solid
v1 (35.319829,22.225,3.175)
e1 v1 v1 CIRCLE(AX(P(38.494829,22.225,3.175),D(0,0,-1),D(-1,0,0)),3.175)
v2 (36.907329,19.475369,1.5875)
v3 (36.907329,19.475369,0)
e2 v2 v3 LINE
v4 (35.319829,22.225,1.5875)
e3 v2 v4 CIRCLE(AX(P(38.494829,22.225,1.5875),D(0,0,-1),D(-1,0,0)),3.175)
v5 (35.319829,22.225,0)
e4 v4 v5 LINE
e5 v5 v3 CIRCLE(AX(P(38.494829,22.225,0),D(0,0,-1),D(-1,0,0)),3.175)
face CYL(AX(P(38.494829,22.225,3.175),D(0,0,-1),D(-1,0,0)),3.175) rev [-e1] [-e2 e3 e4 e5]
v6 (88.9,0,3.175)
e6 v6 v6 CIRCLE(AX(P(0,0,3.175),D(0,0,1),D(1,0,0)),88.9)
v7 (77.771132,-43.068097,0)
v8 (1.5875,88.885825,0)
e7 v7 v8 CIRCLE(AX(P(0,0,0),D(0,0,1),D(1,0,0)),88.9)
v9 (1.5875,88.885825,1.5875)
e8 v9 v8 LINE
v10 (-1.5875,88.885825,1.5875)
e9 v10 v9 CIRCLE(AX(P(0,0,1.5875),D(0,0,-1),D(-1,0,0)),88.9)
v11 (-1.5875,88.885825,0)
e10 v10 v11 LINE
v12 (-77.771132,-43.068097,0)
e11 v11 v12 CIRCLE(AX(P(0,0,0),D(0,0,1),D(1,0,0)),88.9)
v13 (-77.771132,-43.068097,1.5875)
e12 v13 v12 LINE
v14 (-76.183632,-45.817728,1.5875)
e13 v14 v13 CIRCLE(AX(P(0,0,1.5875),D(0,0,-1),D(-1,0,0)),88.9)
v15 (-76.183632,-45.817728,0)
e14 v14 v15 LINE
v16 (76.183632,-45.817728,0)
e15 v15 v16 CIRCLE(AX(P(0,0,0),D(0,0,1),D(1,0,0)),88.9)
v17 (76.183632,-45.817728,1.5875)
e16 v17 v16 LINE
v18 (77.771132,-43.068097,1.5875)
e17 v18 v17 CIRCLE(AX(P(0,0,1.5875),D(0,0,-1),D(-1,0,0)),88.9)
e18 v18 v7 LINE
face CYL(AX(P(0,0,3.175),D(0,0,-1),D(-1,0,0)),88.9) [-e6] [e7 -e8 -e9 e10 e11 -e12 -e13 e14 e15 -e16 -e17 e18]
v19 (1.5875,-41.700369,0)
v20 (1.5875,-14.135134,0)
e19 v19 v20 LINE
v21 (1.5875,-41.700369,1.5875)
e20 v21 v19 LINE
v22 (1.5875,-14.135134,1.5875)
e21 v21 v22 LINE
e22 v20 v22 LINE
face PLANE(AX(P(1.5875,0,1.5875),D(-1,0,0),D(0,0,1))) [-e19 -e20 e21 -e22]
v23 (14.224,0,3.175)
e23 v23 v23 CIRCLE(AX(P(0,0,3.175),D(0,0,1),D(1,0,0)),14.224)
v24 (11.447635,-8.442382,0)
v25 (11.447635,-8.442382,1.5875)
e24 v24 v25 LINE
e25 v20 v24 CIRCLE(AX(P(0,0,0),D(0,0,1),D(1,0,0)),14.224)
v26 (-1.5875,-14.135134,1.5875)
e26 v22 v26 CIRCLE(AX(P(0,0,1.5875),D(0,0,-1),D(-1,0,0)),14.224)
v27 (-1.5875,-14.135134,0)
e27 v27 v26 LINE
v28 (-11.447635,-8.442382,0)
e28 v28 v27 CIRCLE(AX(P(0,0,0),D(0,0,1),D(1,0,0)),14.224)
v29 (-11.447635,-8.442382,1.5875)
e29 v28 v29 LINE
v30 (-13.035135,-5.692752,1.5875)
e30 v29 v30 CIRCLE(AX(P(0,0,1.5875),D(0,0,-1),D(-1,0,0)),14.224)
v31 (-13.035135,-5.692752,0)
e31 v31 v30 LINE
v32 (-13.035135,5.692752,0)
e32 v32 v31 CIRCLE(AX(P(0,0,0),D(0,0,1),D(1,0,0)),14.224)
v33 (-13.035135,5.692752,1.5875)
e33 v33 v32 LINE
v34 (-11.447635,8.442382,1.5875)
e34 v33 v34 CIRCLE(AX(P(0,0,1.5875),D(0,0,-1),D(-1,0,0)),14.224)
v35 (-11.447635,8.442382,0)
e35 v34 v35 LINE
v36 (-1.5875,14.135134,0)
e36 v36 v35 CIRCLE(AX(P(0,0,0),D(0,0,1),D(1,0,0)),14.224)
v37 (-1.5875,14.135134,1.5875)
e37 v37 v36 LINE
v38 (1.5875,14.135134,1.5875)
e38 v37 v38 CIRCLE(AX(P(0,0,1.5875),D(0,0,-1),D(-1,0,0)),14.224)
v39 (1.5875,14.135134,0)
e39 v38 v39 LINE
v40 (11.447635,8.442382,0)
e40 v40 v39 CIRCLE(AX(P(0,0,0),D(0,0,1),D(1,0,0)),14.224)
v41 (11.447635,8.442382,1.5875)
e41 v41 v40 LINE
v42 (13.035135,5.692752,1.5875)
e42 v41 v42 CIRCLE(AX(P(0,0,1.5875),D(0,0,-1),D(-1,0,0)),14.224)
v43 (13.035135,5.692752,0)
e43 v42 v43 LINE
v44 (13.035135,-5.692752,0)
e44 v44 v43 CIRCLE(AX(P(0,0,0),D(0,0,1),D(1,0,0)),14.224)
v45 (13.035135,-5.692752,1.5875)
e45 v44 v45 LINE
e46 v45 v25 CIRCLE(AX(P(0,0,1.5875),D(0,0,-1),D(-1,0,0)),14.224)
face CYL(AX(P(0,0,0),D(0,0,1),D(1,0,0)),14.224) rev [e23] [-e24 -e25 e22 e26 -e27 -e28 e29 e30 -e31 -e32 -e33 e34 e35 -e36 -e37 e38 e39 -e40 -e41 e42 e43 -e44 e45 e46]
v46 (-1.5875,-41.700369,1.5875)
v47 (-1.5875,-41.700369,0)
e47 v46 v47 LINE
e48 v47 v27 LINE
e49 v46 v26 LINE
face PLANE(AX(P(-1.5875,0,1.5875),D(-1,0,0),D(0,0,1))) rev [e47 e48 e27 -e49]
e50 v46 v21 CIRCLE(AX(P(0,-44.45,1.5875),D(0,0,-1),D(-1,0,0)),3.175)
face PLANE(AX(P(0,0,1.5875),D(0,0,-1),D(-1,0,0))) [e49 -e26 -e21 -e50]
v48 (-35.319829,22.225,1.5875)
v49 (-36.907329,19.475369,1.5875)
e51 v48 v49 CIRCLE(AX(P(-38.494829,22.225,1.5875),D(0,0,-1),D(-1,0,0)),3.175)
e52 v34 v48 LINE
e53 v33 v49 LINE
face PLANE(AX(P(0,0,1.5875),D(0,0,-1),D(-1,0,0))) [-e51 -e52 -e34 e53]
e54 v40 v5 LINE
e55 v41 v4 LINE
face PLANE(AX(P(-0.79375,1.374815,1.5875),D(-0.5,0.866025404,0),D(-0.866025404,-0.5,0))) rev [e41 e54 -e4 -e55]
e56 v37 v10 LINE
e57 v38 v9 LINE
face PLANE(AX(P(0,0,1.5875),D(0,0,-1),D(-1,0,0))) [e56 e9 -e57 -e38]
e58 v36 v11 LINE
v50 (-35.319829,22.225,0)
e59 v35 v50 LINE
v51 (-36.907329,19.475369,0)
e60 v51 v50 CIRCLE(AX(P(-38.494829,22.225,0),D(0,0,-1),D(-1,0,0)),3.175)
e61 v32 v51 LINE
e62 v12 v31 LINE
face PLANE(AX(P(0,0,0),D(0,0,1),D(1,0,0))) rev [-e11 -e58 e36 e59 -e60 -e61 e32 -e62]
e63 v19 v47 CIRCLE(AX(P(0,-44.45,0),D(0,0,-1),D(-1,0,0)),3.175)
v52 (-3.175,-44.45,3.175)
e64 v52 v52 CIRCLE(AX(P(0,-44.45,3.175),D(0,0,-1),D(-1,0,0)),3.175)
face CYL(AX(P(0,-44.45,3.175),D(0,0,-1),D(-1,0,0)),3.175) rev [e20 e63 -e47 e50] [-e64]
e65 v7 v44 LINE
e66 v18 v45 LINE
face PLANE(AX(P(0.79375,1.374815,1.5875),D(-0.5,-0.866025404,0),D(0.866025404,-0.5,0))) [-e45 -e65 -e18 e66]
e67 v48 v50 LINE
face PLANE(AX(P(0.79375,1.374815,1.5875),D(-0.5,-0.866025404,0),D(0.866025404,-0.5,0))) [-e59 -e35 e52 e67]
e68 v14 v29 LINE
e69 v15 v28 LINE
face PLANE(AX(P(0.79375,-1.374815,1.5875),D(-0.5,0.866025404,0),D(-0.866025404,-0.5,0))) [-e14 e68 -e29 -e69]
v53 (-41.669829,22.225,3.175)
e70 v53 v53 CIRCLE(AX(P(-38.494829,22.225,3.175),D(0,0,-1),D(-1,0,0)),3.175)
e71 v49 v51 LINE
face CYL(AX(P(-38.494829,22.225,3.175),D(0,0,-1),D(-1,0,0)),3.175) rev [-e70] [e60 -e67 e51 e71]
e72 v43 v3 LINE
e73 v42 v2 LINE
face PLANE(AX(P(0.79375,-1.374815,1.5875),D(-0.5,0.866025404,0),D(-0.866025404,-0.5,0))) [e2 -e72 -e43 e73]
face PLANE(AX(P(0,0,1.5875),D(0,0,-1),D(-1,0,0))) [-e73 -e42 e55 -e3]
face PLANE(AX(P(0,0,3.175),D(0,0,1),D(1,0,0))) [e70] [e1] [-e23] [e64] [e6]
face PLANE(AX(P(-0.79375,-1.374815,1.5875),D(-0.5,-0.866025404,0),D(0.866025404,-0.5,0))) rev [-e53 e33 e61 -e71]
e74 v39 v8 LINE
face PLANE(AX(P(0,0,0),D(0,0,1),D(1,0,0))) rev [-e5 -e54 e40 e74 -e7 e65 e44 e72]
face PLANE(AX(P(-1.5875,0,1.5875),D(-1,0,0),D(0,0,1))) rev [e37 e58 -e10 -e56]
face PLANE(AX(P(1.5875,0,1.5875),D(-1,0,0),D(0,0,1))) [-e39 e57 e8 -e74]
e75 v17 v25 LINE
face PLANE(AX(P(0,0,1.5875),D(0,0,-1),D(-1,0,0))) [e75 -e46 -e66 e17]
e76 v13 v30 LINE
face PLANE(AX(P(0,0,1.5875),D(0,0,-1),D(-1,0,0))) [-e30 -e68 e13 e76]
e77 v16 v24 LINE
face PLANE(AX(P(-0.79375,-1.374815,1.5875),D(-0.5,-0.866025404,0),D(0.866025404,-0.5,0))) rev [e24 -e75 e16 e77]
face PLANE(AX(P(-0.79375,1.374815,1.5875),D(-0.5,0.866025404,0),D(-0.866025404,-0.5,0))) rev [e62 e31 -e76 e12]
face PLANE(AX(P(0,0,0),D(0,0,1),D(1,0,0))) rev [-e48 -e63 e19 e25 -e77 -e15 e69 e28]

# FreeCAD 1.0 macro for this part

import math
import FreeCAD as App
import Part
import Sketcher
Q = App.Units.Quantity

doc = App.newDocument("Part")
body = doc.addObject("PartDesign::Body", "Body")

# Sketch on XY plane
sketch1 = body.newObject("Sketcher::SketchObject", "Sketch")
sketch1.AttachmentSupport = (doc.getObject("XY_Plane"), [""])
sketch1.MapMode = "FlatFace"
sketch1.addGeometry(Part.Circle(App.Vector(0, 0, 0), App.Vector(0, 0, 1), 89), False)
sketch1.addConstraint([
    Sketcher.Constraint("Coincident", 0, 3, -1, 1),
    Sketcher.Constraint("Diameter", 0, Q("7 in")),
])
pad1 = body.newObject("PartDesign::Pad", "Pad")
pad1.Profile = sketch1
pad1.Length = Q("0.125 in")

# Sketch on XY plane
sketch2 = body.newObject("Sketcher::SketchObject", "Sketch001")
sketch2.AttachmentSupport = (doc.getObject("XY_Plane"), [""])
sketch2.MapMode = "FlatFace"
sketch2.addGeometry([
    Part.ArcOfCircle(Part.Circle(App.Vector(0, 0, 0), App.Vector(0, 0, 1), 88.9), math.radians(-31.02), math.radians(-28.98)),  # 0
    Part.LineSegment(App.Vector(76.2, -45.8, 0), App.Vector(1.6, -2.7, 0)),  # 1
    Part.LineSegment(App.Vector(1.6, -2.7, 0), App.Vector(1.6, -41.7, 0)),  # 2
    Part.ArcOfCircle(Part.Circle(App.Vector(0, -44.5, 0), App.Vector(0, 0, 1), 3.2), math.radians(60), math.radians(120)),  # 3
    Part.LineSegment(App.Vector(-1.6, -41.7, 0), App.Vector(-1.6, -2.7, 0)),  # 4
    Part.LineSegment(App.Vector(-1.6, -2.7, 0), App.Vector(-76.2, -45.8, 0)),  # 5
    Part.ArcOfCircle(Part.Circle(App.Vector(0, 0, 0), App.Vector(0, 0, 1), 88.9), math.radians(-151.02), math.radians(-148.98)),  # 6
    Part.LineSegment(App.Vector(-77.8, -43.1, 0), App.Vector(-3.2, 0, 0)),  # 7
    Part.LineSegment(App.Vector(-3.2, 0, 0), App.Vector(-36.9, 19.5, 0)),  # 8
    Part.ArcOfCircle(Part.Circle(App.Vector(-38.5, 22.2, 0), App.Vector(0, 0, 1), 3.2), math.radians(-60), math.radians(0)),  # 9
    Part.LineSegment(App.Vector(-35.3, 22.2, 0), App.Vector(-1.6, 2.7, 0)),  # 10
    Part.LineSegment(App.Vector(-1.6, 2.7, 0), App.Vector(-1.6, 88.9, 0)),  # 11
    Part.ArcOfCircle(Part.Circle(App.Vector(0, 0, 0), App.Vector(0, 0, 1), 88.9), math.radians(88.98), math.radians(91.02)),  # 12
    Part.LineSegment(App.Vector(1.6, 88.9, 0), App.Vector(1.6, 2.7, 0)),  # 13
    Part.LineSegment(App.Vector(1.6, 2.7, 0), App.Vector(35.3, 22.2, 0)),  # 14
    Part.ArcOfCircle(Part.Circle(App.Vector(38.5, 22.2, 0), App.Vector(0, 0, 1), 3.2), math.radians(180), math.radians(240)),  # 15
    Part.LineSegment(App.Vector(36.9, 19.5, 0), App.Vector(3.2, 0, 0)),  # 16
    Part.LineSegment(App.Vector(3.2, 0, 0), App.Vector(77.8, -43.1, 0)),  # 17
], False)
sketch2.addConstraint([
    Sketcher.Constraint("Coincident", 0, 1, 1, 1),
    Sketcher.Constraint("Coincident", 1, 2, 2, 1),
    Sketcher.Constraint("Coincident", 2, 2, 3, 1),
    Sketcher.Constraint("Coincident", 3, 2, 4, 1),
    Sketcher.Constraint("Coincident", 4, 2, 5, 1),
    Sketcher.Constraint("Coincident", 5, 2, 6, 2),
    Sketcher.Constraint("Coincident", 6, 1, 7, 1),
    Sketcher.Constraint("Coincident", 7, 2, 8, 1),
    Sketcher.Constraint("Coincident", 8, 2, 9, 1),
    Sketcher.Constraint("Coincident", 9, 2, 10, 1),
    Sketcher.Constraint("Coincident", 10, 2, 11, 1),
    Sketcher.Constraint("Coincident", 11, 2, 12, 2),
    Sketcher.Constraint("Coincident", 12, 1, 13, 1),
    Sketcher.Constraint("Coincident", 13, 2, 14, 1),
    Sketcher.Constraint("Coincident", 14, 2, 15, 1),
    Sketcher.Constraint("Coincident", 15, 2, 16, 1),
    Sketcher.Constraint("Coincident", 16, 2, 17, 1),
    Sketcher.Constraint("Coincident", 17, 2, 0, 2),
    Sketcher.Constraint("Vertical", 2),
    Sketcher.Constraint("Vertical", 4),
    Sketcher.Constraint("Vertical", 11),
    Sketcher.Constraint("Vertical", 13),
    Sketcher.Constraint("Coincident", 0, 3, -1, 1),
    Sketcher.Constraint("Coincident", 6, 3, -1, 1),
    Sketcher.Constraint("Coincident", 12, 3, -1, 1),
    Sketcher.Constraint("Equal", 0, 6),
    Sketcher.Constraint("Equal", 3, 9),
    Sketcher.Constraint("Equal", 6, 12),
    Sketcher.Constraint("Equal", 9, 15),
    Sketcher.Constraint("Symmetric", 1, 2, 10, 2, -1, 1),
    Sketcher.Constraint("Symmetric", 4, 2, 13, 2, -1, 1),
    Sketcher.Constraint("Symmetric", 7, 2, 16, 2, -1, 1),
    Sketcher.Constraint("Symmetric", 9, 3, 15, 3, -2),
    Sketcher.Constraint("Symmetric", 2, 2, 3, 2, -2),
    Sketcher.Constraint("PointOnObject", 7, 2, -1),
    Sketcher.Constraint("Parallel", 5, 7),
    Sketcher.Constraint("Parallel", 1, 8),
    Sketcher.Constraint("Parallel", 8, 10),
    Sketcher.Constraint("Parallel", 7, 14),
    Sketcher.Constraint("Parallel", 14, 16),
    Sketcher.Constraint("Parallel", 10, 17),
    Sketcher.Constraint("Horizontal", 1, 2, 4, 2),
    Sketcher.Constraint("Horizontal", 0, 1, 5, 2),
    Sketcher.Constraint("Horizontal", 15, 3, 9, 2),
    Sketcher.Constraint("Equal", 5, 7),
    Sketcher.Constraint("Equal", 8, 10),
    Sketcher.Constraint("Radius", 0, Q("3.5000001 in")),
    Sketcher.Constraint("Angle", 1, Q("150 deg")),
    Sketcher.Constraint("Radius", 3, Q("0.125 in")),
    Sketcher.Constraint("DistanceY", 3, 3, -1, 1, Q("1.75 in")),
    Sketcher.Constraint("DistanceY", -1, 1, 9, 3, Q("0.875 in")),
    Sketcher.Constraint("DistanceX", -1, 1, 1, 2, Q("0.0625 in")),
])
pocket1 = body.newObject("PartDesign::Pocket", "Pocket")
pocket1.Profile = sketch2
pocket1.Length = Q("0.0625 in")
pocket1.Reversed = True

# Sketch on XY plane
sketch3 = body.newObject("Sketcher::SketchObject", "Sketch002")
sketch3.AttachmentSupport = (doc.getObject("XY_Plane"), [""])
sketch3.MapMode = "FlatFace"
sketch3.AttachmentOffset = App.Placement(App.Vector(0, 0, 0.125 * 25.4), App.Rotation())
sketch3.addGeometry(Part.Circle(App.Vector(0, 0, 0), App.Vector(0, 0, 1), 14), False)
sketch3.addConstraint([
    Sketcher.Constraint("Coincident", 0, 3, -1, 1),
    Sketcher.Constraint("Diameter", 0, Q("1.12 in")),
])
pocket2 = body.newObject("PartDesign::Pocket", "Pocket001")
pocket2.Profile = sketch3
pocket2.Type = "ThroughAll"

# Sketch on XY plane
sketch4 = body.newObject("Sketcher::SketchObject", "Sketch003")
sketch4.AttachmentSupport = (doc.getObject("XY_Plane"), [""])
sketch4.MapMode = "FlatFace"
sketch4.addGeometry([
    Part.ArcOfCircle(Part.Circle(App.Vector(38.5, 22.2, 0), App.Vector(0, 0, 1), 3.2), math.radians(180), math.radians(240)),  # 0
    Part.ArcOfCircle(Part.Circle(App.Vector(38.5, 22.2, 0), App.Vector(0, 0, 1), 3.2), math.radians(60), math.radians(180)),  # 1
    Part.ArcOfCircle(Part.Circle(App.Vector(38.5, 22.2, 0), App.Vector(0, 0, 1), 3.2), math.radians(0), math.radians(60)),  # 2
    Part.ArcOfCircle(Part.Circle(App.Vector(38.5, 22.2, 0), App.Vector(0, 0, 1), 3.2), math.radians(-120), math.radians(0)),  # 3
    Part.ArcOfCircle(Part.Circle(App.Vector(-38.5, 22.2, 0), App.Vector(0, 0, 1), 3.2), math.radians(-60), math.radians(0)),  # 4
    Part.ArcOfCircle(Part.Circle(App.Vector(-38.5, 22.2, 0), App.Vector(0, 0, 1), 3.2), math.radians(180), math.radians(300)),  # 5
    Part.ArcOfCircle(Part.Circle(App.Vector(-38.5, 22.2, 0), App.Vector(0, 0, 1), 3.2), math.radians(120), math.radians(180)),  # 6
    Part.ArcOfCircle(Part.Circle(App.Vector(-38.5, 22.2, 0), App.Vector(0, 0, 1), 3.2), math.radians(0), math.radians(120)),  # 7
    Part.ArcOfCircle(Part.Circle(App.Vector(0, -44.5, 0), App.Vector(0, 0, 1), 3.2), math.radians(-60), math.radians(60)),  # 8
    Part.ArcOfCircle(Part.Circle(App.Vector(0, -44.5, 0), App.Vector(0, 0, 1), 3.2), math.radians(-120), math.radians(-60)),  # 9
    Part.ArcOfCircle(Part.Circle(App.Vector(0, -44.5, 0), App.Vector(0, 0, 1), 3.2), math.radians(180), math.radians(240)),  # 10
    Part.ArcOfCircle(Part.Circle(App.Vector(0, -44.5, 0), App.Vector(0, 0, 1), 3.2), math.radians(120), math.radians(180)),  # 11
    Part.ArcOfCircle(Part.Circle(App.Vector(0, -44.5, 0), App.Vector(0, 0, 1), 3.2), math.radians(60), math.radians(120)),  # 12
], False)
sketch4.addConstraint([
    Sketcher.Constraint("Tangent", 0, 1, 1, 2),
    Sketcher.Constraint("Tangent", 1, 1, 2, 2),
    Sketcher.Constraint("Tangent", 2, 1, 3, 2),
    Sketcher.Constraint("Tangent", 3, 1, 0, 2),
    Sketcher.Constraint("Tangent", 4, 1, 5, 2),
    Sketcher.Constraint("Tangent", 5, 1, 6, 2),
    Sketcher.Constraint("Tangent", 6, 1, 7, 2),
    Sketcher.Constraint("Tangent", 7, 1, 4, 2),
    Sketcher.Constraint("Tangent", 8, 1, 9, 2),
    Sketcher.Constraint("Tangent", 9, 1, 10, 2),
    Sketcher.Constraint("Tangent", 10, 1, 11, 2),
    Sketcher.Constraint("Tangent", 11, 1, 12, 2),
    Sketcher.Constraint("Tangent", 12, 1, 8, 2),
    Sketcher.Constraint("Coincident", 10, 3, 8, 3),
    Sketcher.Constraint("Equal", 0, 1),
    Sketcher.Constraint("Equal", 3, 4),
    Sketcher.Constraint("Equal", 4, 5),
    Sketcher.Constraint("Equal", 7, 8),
    Sketcher.Constraint("Symmetric", 0, 3, 4, 3, -2),
    Sketcher.Constraint("Symmetric", 8, 1, 9, 1, -2),
    Sketcher.Constraint("Horizontal", 7, 3, 0, 1),
    Sketcher.Constraint("Horizontal", 0, 1, 2, 1),
    Sketcher.Constraint("Horizontal", 3, 1, 4, 1),
    Sketcher.Constraint("Horizontal", 2, 1, 5, 1),
    Sketcher.Constraint("Horizontal", 1, 1, 6, 1),
    Sketcher.Constraint("Horizontal", 5, 1, 7, 1),
    Sketcher.Constraint("Horizontal", 12, 3, 10, 1),
    Sketcher.Constraint("Horizontal", 11, 1, 12, 1),
    Sketcher.Constraint("Vertical", 9, 1, 11, 1),
    Sketcher.Constraint("Radius", 0, Q("0.125 in")),
    Sketcher.Constraint("DistanceY", 8, 3, -1, 1, Q("1.75 in")),
    Sketcher.Constraint("DistanceY", -1, 1, 0, 3, Q("0.875 in")),
    Sketcher.Constraint("DistanceX", -1, 1, 8, 1, Q("0.0625 in")),
    Sketcher.Constraint("DistanceX", 0, 3, 1, 1, Q("0.0625 in")),
    Sketcher.Constraint("DistanceX", 0, 1, 3, 1, Q("0.0625 in")),
    Sketcher.Constraint("DistanceX", -1, 1, 0, 3, 38.494829),
])
pocket3 = body.newObject("PartDesign::Pocket", "Pocket002")
pocket3.Profile = sketch4
pocket3.Type = "ThroughAll"
pocket3.Reversed = True

doc.recompute()
